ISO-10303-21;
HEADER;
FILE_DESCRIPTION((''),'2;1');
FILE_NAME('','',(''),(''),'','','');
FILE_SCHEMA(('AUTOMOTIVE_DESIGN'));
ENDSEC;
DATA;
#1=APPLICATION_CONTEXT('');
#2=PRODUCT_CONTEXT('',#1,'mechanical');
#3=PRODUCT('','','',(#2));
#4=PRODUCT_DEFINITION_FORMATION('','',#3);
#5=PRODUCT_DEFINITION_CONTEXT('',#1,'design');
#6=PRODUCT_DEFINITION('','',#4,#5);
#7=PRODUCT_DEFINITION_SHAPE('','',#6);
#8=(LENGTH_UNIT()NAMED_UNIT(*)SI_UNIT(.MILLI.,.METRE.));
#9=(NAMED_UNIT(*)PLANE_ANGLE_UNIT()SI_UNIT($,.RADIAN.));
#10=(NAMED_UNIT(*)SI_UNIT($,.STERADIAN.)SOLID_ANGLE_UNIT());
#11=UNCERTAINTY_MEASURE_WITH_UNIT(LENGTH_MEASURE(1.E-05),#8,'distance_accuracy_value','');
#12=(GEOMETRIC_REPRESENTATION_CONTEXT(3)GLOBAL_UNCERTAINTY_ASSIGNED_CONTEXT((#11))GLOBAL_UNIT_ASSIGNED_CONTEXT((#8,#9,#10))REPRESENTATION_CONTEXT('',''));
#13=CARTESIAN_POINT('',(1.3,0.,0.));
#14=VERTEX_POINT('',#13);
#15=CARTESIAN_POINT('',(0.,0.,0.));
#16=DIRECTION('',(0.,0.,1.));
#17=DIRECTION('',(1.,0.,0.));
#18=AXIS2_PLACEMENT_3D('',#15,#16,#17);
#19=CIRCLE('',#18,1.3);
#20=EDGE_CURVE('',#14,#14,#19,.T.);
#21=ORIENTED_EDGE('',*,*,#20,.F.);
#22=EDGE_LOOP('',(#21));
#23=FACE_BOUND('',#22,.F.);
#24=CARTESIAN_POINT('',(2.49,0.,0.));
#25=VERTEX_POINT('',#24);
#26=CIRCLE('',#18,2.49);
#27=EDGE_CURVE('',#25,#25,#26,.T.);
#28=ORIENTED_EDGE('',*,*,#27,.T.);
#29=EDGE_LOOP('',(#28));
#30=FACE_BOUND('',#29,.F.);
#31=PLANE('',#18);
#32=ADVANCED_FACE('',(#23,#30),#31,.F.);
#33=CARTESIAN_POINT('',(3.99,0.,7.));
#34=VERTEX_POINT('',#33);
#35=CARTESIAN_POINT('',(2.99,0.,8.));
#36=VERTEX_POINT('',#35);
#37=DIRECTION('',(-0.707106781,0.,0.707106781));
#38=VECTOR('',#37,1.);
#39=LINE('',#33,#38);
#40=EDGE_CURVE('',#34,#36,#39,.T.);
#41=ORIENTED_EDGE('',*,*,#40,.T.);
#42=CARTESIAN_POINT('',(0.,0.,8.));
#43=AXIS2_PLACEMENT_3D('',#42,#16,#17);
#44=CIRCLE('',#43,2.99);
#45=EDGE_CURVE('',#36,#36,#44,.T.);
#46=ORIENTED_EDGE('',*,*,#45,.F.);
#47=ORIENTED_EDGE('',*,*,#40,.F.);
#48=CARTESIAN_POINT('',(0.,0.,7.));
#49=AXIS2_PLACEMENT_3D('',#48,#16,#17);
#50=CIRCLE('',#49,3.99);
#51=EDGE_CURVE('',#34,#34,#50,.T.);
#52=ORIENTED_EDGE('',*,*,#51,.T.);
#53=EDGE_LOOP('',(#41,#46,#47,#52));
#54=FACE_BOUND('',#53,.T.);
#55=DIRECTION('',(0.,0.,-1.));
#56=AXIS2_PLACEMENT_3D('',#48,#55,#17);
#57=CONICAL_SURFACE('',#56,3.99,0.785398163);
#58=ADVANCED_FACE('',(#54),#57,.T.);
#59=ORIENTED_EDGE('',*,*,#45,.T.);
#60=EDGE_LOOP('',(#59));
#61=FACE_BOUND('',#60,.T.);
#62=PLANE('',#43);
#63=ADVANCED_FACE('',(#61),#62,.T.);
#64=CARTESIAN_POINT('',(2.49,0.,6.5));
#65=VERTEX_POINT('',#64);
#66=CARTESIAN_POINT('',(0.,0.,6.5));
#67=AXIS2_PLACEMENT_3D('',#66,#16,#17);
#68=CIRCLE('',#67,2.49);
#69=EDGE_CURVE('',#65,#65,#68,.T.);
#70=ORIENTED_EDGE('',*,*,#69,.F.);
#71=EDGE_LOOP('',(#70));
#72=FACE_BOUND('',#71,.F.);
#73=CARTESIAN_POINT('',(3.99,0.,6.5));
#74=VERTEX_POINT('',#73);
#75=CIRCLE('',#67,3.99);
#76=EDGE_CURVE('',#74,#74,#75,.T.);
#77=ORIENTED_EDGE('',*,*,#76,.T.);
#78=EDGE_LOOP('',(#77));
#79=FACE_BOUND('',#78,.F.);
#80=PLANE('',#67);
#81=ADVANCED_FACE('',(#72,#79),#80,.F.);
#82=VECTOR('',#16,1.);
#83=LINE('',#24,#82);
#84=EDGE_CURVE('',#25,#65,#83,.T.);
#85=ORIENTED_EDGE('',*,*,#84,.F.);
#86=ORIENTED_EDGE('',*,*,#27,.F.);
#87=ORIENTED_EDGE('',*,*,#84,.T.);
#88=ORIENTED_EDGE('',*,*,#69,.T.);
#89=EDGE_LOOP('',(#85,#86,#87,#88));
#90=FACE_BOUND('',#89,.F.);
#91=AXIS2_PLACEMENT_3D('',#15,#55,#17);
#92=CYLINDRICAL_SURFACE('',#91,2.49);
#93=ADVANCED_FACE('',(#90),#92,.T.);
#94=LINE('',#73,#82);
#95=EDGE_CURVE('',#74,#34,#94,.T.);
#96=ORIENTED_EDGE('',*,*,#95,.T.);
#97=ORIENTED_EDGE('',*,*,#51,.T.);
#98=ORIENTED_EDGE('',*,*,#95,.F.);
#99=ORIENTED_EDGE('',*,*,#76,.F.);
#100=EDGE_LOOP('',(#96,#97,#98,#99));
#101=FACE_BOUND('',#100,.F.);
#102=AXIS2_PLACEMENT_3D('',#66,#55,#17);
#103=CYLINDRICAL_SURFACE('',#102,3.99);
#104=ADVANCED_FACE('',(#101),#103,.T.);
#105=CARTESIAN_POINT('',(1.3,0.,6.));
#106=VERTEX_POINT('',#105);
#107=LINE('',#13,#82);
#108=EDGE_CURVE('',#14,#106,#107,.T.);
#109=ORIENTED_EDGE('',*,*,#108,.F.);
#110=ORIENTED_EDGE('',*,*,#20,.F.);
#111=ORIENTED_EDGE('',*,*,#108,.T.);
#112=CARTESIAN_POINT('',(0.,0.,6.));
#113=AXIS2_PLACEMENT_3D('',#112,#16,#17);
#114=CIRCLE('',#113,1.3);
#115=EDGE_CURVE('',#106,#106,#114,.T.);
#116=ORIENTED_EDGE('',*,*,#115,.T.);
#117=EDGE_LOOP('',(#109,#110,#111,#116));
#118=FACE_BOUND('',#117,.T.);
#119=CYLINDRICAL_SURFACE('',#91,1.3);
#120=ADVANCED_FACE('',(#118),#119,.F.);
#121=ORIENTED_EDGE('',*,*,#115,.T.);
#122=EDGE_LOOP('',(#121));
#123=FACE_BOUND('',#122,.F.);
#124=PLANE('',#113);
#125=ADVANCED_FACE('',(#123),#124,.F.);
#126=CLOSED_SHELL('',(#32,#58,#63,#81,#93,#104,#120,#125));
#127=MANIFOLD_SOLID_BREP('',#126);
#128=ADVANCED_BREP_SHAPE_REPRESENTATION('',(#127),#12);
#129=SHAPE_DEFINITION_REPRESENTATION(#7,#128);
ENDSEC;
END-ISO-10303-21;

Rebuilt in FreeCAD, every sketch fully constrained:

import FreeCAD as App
import Part
import Sketcher

V = App.Vector


def edges_at(feature, points):
    """Names of the edges that pass closest to the given points."""
    edges = feature.Shape.Edges
    near = lambda p: min(range(len(edges)), key=lambda i: edges[i].distToShape(Part.Vertex(*p))[0])
    return sorted({f"Edge{near(p) + 1}" for p in points})

doc = App.newDocument("Part")
body = doc.addObject("PartDesign::Body", "Body")

# Sketch on XY plane
sketch1 = body.newObject("Sketcher::SketchObject", "Sketch")
sketch1.AttachmentSupport = (doc.getObject("XY_Plane"), [""])
sketch1.MapMode = "FlatFace"
sketch1.addGeometry(Part.Circle(V(0, 0, 0), V(0, 0, 1), 2.5), False)
sketch1.addConstraint(Sketcher.Constraint("Coincident", 0, 3, -1, 1))
sketch1.addConstraint(Sketcher.Constraint("Diameter", 0, 4.98))
pad1 = body.newObject("PartDesign::Pad", "Pad")
pad1.Profile = sketch1
pad1.Length = 6.5

# Sketch on XY plane
sketch2 = body.newObject("Sketcher::SketchObject", "Sketch001")
sketch2.AttachmentSupport = (doc.getObject("XY_Plane"), [""])
sketch2.MapMode = "FlatFace"
sketch2.AttachmentOffset = App.Placement(V(0, 0, 6.5), App.Rotation())
sketch2.addGeometry(Part.Circle(V(0, 0, 0), V(0, 0, 1), 4), False)
sketch2.addConstraint(Sketcher.Constraint("Coincident", 0, 3, -1, 1))
sketch2.addConstraint(Sketcher.Constraint("Diameter", 0, 7.98))
pad2 = body.newObject("PartDesign::Pad", "Pad001")
pad2.Profile = sketch2
pad2.Length = 1.5

# Sketch on XY plane
sketch3 = body.newObject("Sketcher::SketchObject", "Sketch002")
sketch3.AttachmentSupport = (doc.getObject("XY_Plane"), [""])
sketch3.MapMode = "FlatFace"
sketch3.addGeometry(Part.Circle(V(0, 0, 0), V(0, 0, 1), 1.3), False)
sketch3.addConstraint(Sketcher.Constraint("Coincident", 0, 3, -1, 1))
sketch3.addConstraint(Sketcher.Constraint("Diameter", 0, 2.6))
pocket1 = body.newObject("PartDesign::Pocket", "Pocket")
pocket1.Profile = sketch3
pocket1.Length = 6
pocket1.Reversed = True
doc.recompute()

chamfer = body.newObject("PartDesign::Chamfer", "Chamfer")
chamfer.Base = (pocket1, edges_at(pocket1, [(-3.99, 0, 8)]))
chamfer.Size = 1

doc.recompute()
